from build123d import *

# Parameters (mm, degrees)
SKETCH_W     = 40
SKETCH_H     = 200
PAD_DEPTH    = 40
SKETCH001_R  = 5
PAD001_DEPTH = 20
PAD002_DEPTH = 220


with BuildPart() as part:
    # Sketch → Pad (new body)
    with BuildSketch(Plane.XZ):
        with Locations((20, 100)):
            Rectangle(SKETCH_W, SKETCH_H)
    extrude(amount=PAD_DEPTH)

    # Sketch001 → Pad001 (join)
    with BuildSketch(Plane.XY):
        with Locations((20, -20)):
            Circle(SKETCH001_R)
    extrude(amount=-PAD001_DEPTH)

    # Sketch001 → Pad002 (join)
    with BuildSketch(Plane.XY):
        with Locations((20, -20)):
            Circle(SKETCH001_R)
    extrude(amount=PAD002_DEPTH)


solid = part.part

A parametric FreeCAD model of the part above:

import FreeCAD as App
import Part
import Sketcher
from FreeCAD import Vector
Q = App.Units.Quantity


def add_polygon(sketch, points):
    """Adds a closed chain of lines whose ends are joined by coincident constraints."""
    first, n = sketch.GeometryCount, len(points)
    for a, b in zip(points, points[1:] + points[:1]):
        sketch.addGeometry(Part.LineSegment(App.Vector(*a, 0), App.Vector(*b, 0)), False)
    for i in range(n):
        sketch.addConstraint(Sketcher.Constraint("Coincident", first + i, 2, first + (i + 1) % n, 1))

doc = App.newDocument("Part")
body = doc.addObject("PartDesign::Body", "Body")

# Sketch on XZ plane
sketch1 = doc.addObject("Sketcher::SketchObject", "Sketch")
body.addObject(sketch1)
sketch1.AttachmentSupport = (doc.XZ_Plane, [""])
sketch1.MapMode = "FlatFace"
add_polygon(sketch1, [(0, 200), (0, 0), (40, 0), (40, 200)])  # lines 0-3
sketch1.addConstraint([
    Sketcher.Constraint("Vertical", 0),
    Sketcher.Constraint("Horizontal", 1),
    Sketcher.Constraint("Vertical", 2),
    Sketcher.Constraint("Horizontal", 3),
    Sketcher.Constraint("Coincident", 0, 2, -1, 1),
    Sketcher.Constraint("DistanceX", 1, 1, 1, 2, Q("40 mm")),
    Sketcher.Constraint("DistanceY", 0, 2, 0, 1, Q("200 mm")),
])
pad1 = doc.addObject("PartDesign::Pad", "Pad")
body.addObject(pad1)
pad1.Profile = sketch1
pad1.Length = 40

# Sketch on XY plane
sketch2 = doc.addObject("Sketcher::SketchObject", "Sketch001")
body.addObject(sketch2)
sketch2.AttachmentSupport = (doc.XY_Plane, [""])
sketch2.MapMode = "FlatFace"
sketch2.addGeometry(Part.Circle(Vector(20, -20, 0), Vector(0, 0, 1), 5), False)
sketch2.addConstraint([
    Sketcher.Constraint("Diameter", 0, Q("10 mm")),
    Sketcher.Constraint("DistanceX", -1, 1, 0, 3, Q("20 mm")),
    Sketcher.Constraint("DistanceY", 0, 3, -1, 1, Q("20 mm")),
])
pad2 = doc.addObject("PartDesign::Pad", "Pad001")
body.addObject(pad2)
pad2.Profile = sketch2
pad2.Length = 20
pad2.Reversed = True

# Sketch on XY plane
sketch3 = doc.addObject("Sketcher::SketchObject", "Sketch002")
body.addObject(sketch3)
sketch3.AttachmentSupport = (doc.XY_Plane, [""])
sketch3.MapMode = "FlatFace"
sketch3.addGeometry(Part.Circle(Vector(20, -20, 0), Vector(0, 0, 1), 5), False)
sketch3.addConstraint([
    Sketcher.Constraint("Diameter", 0, Q("10 mm")),
    Sketcher.Constraint("DistanceX", -1, 1, 0, 3, Q("20 mm")),
    Sketcher.Constraint("DistanceY", 0, 3, -1, 1, Q("20 mm")),
])
pad3 = doc.addObject("PartDesign::Pad", "Pad002")
body.addObject(pad3)
pad3.Profile = sketch3
pad3.Length = 220

doc.recompute()
